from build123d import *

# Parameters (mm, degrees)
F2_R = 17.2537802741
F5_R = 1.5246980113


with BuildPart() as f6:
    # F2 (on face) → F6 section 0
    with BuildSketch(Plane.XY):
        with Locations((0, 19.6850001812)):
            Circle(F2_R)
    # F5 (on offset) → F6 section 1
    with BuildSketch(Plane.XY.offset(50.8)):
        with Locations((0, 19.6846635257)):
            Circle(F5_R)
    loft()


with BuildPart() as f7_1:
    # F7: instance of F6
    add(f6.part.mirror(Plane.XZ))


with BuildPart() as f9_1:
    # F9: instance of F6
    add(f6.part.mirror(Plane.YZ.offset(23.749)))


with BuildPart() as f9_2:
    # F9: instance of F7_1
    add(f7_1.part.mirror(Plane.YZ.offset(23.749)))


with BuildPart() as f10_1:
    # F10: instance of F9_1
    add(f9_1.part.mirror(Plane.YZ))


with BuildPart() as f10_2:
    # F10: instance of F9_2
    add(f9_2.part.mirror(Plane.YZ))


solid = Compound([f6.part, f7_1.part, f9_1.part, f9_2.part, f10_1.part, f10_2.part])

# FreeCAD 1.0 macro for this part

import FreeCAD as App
import Part
import Sketcher

doc = App.newDocument("Part")
body = doc.addObject("PartDesign::Body", "Body")

# Sketch on XY plane
sketch1 = body.newObject("Sketcher::SketchObject", "Sketch")
sketch1.AttachmentSupport = (doc.getObject("XY_Plane"), [""])
sketch1.MapMode = "FlatFace"
sketch1.addGeometry(Part.Circle(App.Vector(0, 19.685, 0), App.Vector(0, 0, 1), 17.25378), False)
sketch1.addConstraint([
    Sketcher.Constraint("PointOnObject", 0, 3, -2),
    Sketcher.Constraint("Diameter", 0, 34.507561),
    Sketcher.Constraint("DistanceY", -1, 1, 0, 3, 19.685),
])

# Sketch on XY plane
sketch2 = body.newObject("Sketcher::SketchObject", "Sketch001")
sketch2.AttachmentSupport = (doc.getObject("XY_Plane"), [""])
sketch2.MapMode = "FlatFace"
sketch2.AttachmentOffset = App.Placement(App.Vector(0, 0, 50.8), App.Rotation())
sketch2.addGeometry(Part.Circle(App.Vector(0, 19.684664, 0), App.Vector(0, 0, 1), 1.524698), False)
sketch2.addConstraint([
    Sketcher.Constraint("PointOnObject", 0, 3, -2),
    Sketcher.Constraint("Diameter", 0, 3.049396),
    Sketcher.Constraint("DistanceY", -1, 1, 0, 3, 19.684664),
])

additiveloft = body.newObject("PartDesign::AdditiveLoft", "AdditiveLoft")
additiveloft.Profile = sketch1
additiveloft.Sections = [sketch2]
body2 = doc.addObject("PartDesign::Body", "Body001")
doc.recompute()

mirroring = doc.addObject("Part::Mirroring", "Mirroring")
mirroring.Source = body
mirroring.Base = App.Vector(0, 0, 0)
mirroring.Normal = App.Vector(0, -1, 0)
body2.BaseFeature = mirroring
doc.recompute()
body3 = doc.addObject("PartDesign::Body", "Body002")
doc.recompute()

mirroring2 = doc.addObject("Part::Mirroring", "Mirroring001")
mirroring2.Source = body
mirroring2.Base = App.Vector(23.749, 0, 0)
mirroring2.Normal = App.Vector(1, 0, 0)
body3.BaseFeature = mirroring2
doc.recompute()
body4 = doc.addObject("PartDesign::Body", "Body003")
doc.recompute()

mirroring3 = doc.addObject("Part::Mirroring", "Mirroring002")
mirroring3.Source = body2
mirroring3.Base = App.Vector(23.749, 0, 0)
mirroring3.Normal = App.Vector(1, 0, 0)
body4.BaseFeature = mirroring3
doc.recompute()
body5 = doc.addObject("PartDesign::Body", "Body004")
doc.recompute()

mirroring4 = doc.addObject("Part::Mirroring", "Mirroring003")
mirroring4.Source = body3
mirroring4.Base = App.Vector(0, 0, 0)
mirroring4.Normal = App.Vector(1, 0, 0)
body5.BaseFeature = mirroring4
doc.recompute()
body6 = doc.addObject("PartDesign::Body", "Body005")
doc.recompute()

mirroring5 = doc.addObject("Part::Mirroring", "Mirroring004")
mirroring5.Source = body4
mirroring5.Base = App.Vector(0, 0, 0)
mirroring5.Normal = App.Vector(1, 0, 0)
body6.BaseFeature = mirroring5
doc.recompute()
mirroring.Visibility = False
mirroring2.Visibility = False
mirroring3.Visibility = False
mirroring4.Visibility = False
mirroring5.Visibility = False

doc.recompute()
